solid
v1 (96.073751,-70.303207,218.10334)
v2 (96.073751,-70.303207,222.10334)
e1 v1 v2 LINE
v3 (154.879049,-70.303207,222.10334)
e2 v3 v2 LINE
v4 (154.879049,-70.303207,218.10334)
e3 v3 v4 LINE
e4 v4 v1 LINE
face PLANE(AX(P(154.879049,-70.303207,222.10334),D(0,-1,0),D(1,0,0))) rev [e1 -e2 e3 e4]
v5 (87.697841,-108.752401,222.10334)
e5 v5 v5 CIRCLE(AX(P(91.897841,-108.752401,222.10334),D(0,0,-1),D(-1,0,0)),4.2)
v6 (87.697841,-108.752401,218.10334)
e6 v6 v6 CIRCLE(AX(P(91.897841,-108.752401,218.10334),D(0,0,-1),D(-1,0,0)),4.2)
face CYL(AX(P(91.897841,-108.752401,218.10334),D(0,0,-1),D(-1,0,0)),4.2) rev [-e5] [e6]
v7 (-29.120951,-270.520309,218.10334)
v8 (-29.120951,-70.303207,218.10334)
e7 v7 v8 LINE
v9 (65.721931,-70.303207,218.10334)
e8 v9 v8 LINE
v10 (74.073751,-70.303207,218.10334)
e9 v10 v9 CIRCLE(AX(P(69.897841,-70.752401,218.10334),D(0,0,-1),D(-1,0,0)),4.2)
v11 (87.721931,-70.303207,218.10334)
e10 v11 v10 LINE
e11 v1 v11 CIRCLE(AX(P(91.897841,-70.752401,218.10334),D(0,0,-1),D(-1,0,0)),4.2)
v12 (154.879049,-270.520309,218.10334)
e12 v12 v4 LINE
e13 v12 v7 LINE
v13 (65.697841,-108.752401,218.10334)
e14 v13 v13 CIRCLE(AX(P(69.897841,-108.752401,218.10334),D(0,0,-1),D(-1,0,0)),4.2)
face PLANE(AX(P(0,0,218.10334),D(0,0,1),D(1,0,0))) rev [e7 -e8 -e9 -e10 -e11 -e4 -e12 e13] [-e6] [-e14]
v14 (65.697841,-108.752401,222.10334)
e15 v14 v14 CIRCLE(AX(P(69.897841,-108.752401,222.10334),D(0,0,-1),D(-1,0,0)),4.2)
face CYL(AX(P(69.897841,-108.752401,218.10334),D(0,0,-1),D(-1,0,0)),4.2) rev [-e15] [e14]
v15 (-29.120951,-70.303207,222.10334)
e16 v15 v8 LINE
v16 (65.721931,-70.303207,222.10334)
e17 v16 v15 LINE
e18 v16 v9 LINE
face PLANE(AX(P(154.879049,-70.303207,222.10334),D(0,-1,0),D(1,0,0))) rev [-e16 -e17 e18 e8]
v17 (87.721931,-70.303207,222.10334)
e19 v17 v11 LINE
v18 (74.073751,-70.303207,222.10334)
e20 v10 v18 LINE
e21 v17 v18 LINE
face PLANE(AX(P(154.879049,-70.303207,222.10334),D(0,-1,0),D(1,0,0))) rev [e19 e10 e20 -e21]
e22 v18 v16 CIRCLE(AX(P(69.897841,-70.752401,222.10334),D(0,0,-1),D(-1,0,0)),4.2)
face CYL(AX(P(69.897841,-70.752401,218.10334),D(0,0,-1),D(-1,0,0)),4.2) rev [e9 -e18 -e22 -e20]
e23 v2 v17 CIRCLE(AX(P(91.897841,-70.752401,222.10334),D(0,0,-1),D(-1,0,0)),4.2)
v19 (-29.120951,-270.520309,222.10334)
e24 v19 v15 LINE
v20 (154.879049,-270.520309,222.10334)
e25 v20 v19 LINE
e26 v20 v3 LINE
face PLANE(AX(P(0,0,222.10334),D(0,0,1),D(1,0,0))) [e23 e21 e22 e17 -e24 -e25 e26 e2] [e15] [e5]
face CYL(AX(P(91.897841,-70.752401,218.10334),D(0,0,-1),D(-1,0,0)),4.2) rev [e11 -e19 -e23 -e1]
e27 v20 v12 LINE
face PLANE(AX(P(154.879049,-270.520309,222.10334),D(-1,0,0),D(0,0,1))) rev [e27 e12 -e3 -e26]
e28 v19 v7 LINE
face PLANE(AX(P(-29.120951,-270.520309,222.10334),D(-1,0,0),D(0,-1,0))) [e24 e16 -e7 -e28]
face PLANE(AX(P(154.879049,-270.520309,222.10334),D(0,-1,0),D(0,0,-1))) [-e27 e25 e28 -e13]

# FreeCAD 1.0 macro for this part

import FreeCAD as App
import Part
import Sketcher

V = App.Vector
Q = App.Units.Quantity


def add_polygon(sketch, points):
    """Adds a closed chain of lines whose ends are joined by coincident constraints."""
    first, n = sketch.GeometryCount, len(points)
    for a, b in zip(points, points[1:] + points[:1]):
        sketch.addGeometry(Part.LineSegment(App.Vector(*a, 0), App.Vector(*b, 0)), False)
    for i in range(n):
        sketch.addConstraint(Sketcher.Constraint("Coincident", first + i, 2, first + (i + 1) % n, 1))

doc = App.newDocument("Part")
body = doc.addObject("PartDesign::Body", "Body")

sketch1 = body.newObject("Sketcher::SketchObject", "Sketch")
sketch1.AttachmentSupport = (doc.getObject("XY_Plane"), [""])
sketch1.MapMode = "FlatFace"
sketch1.AttachmentOffset = App.Placement(V(0, 0, 218.10334), App.Rotation())
add_polygon(sketch1, [(-29, -70), (-29, -271), (155, -271), (155, -70)])
sketch1.addConstraint(Sketcher.Constraint("Vertical", 0))
sketch1.addConstraint(Sketcher.Constraint("Horizontal", 1))
sketch1.addConstraint(Sketcher.Constraint("Vertical", 2))
sketch1.addConstraint(Sketcher.Constraint("Horizontal", 3))
sketch1.addConstraint(Sketcher.Constraint("DistanceX", 1, 1, 1, 2, Q("184 mm")))
sketch1.addConstraint(Sketcher.Constraint("DistanceY", 0, 2, 0, 1, Q("200.217103 mm")))
sketch1.addConstraint(Sketcher.Constraint("DistanceX", 0, 2, -1, 1, Q("29.120951 mm")))
sketch1.addConstraint(Sketcher.Constraint("DistanceY", 0, 2, -1, 1, Q("270.520309 mm")))
pad1 = body.newObject("PartDesign::Pad", "Pad")
pad1.Profile = sketch1
pad1.Length = 4

sketch2 = body.newObject("Sketcher::SketchObject", "Sketch001")
sketch2.AttachmentSupport = (doc.getObject("XY_Plane"), [""])
sketch2.MapMode = "FlatFace"
sketch2.AttachmentOffset = App.Placement(V(0, 0, 218.10334), App.Rotation())
sketch2.addGeometry(Part.Circle(V(91.9, -70.8, 0), V(0, 0, 1), 4.2), False)
sketch2.addGeometry(Part.Circle(V(69.9, -70.8, 0), V(0, 0, 1), 4.2), False)
sketch2.addGeometry(Part.Circle(V(91.9, -108.8, 0), V(0, 0, 1), 4.2), False)
sketch2.addGeometry(Part.Circle(V(69.9, -108.8, 0), V(0, 0, 1), 4.2), False)
sketch2.addConstraint(Sketcher.Constraint("Equal", 0, 1))
sketch2.addConstraint(Sketcher.Constraint("Equal", 1, 2))
sketch2.addConstraint(Sketcher.Constraint("Equal", 2, 3))
sketch2.addConstraint(Sketcher.Constraint("Horizontal", 0, 3, 1, 3))
sketch2.addConstraint(Sketcher.Constraint("Horizontal", 2, 3, 3, 3))
sketch2.addConstraint(Sketcher.Constraint("Vertical", 0, 3, 2, 3))
sketch2.addConstraint(Sketcher.Constraint("Vertical", 1, 3, 3, 3))
sketch2.addConstraint(Sketcher.Constraint("Diameter", 0, Q("8.4 mm")))
sketch2.addConstraint(Sketcher.Constraint("DistanceX", 1, 3, 0, 3, Q("22 mm")))
sketch2.addConstraint(Sketcher.Constraint("DistanceY", 2, 3, 0, 3, Q("38 mm")))
sketch2.addConstraint(Sketcher.Constraint("DistanceY", 0, 3, -1, 1, Q("70.752401 mm")))
sketch2.addConstraint(Sketcher.Constraint("DistanceX", -1, 1, 0, 3, Q("91.897841 mm")))
doc.recompute()
hole = body.newObject("PartDesign::Hole", "Hole")
hole.Profile = sketch2
hole.ThreadType = "None"
hole.Diameter = 8.4
hole.DepthType = "ThroughAll"
hole.Reversed = True

doc.recompute()
